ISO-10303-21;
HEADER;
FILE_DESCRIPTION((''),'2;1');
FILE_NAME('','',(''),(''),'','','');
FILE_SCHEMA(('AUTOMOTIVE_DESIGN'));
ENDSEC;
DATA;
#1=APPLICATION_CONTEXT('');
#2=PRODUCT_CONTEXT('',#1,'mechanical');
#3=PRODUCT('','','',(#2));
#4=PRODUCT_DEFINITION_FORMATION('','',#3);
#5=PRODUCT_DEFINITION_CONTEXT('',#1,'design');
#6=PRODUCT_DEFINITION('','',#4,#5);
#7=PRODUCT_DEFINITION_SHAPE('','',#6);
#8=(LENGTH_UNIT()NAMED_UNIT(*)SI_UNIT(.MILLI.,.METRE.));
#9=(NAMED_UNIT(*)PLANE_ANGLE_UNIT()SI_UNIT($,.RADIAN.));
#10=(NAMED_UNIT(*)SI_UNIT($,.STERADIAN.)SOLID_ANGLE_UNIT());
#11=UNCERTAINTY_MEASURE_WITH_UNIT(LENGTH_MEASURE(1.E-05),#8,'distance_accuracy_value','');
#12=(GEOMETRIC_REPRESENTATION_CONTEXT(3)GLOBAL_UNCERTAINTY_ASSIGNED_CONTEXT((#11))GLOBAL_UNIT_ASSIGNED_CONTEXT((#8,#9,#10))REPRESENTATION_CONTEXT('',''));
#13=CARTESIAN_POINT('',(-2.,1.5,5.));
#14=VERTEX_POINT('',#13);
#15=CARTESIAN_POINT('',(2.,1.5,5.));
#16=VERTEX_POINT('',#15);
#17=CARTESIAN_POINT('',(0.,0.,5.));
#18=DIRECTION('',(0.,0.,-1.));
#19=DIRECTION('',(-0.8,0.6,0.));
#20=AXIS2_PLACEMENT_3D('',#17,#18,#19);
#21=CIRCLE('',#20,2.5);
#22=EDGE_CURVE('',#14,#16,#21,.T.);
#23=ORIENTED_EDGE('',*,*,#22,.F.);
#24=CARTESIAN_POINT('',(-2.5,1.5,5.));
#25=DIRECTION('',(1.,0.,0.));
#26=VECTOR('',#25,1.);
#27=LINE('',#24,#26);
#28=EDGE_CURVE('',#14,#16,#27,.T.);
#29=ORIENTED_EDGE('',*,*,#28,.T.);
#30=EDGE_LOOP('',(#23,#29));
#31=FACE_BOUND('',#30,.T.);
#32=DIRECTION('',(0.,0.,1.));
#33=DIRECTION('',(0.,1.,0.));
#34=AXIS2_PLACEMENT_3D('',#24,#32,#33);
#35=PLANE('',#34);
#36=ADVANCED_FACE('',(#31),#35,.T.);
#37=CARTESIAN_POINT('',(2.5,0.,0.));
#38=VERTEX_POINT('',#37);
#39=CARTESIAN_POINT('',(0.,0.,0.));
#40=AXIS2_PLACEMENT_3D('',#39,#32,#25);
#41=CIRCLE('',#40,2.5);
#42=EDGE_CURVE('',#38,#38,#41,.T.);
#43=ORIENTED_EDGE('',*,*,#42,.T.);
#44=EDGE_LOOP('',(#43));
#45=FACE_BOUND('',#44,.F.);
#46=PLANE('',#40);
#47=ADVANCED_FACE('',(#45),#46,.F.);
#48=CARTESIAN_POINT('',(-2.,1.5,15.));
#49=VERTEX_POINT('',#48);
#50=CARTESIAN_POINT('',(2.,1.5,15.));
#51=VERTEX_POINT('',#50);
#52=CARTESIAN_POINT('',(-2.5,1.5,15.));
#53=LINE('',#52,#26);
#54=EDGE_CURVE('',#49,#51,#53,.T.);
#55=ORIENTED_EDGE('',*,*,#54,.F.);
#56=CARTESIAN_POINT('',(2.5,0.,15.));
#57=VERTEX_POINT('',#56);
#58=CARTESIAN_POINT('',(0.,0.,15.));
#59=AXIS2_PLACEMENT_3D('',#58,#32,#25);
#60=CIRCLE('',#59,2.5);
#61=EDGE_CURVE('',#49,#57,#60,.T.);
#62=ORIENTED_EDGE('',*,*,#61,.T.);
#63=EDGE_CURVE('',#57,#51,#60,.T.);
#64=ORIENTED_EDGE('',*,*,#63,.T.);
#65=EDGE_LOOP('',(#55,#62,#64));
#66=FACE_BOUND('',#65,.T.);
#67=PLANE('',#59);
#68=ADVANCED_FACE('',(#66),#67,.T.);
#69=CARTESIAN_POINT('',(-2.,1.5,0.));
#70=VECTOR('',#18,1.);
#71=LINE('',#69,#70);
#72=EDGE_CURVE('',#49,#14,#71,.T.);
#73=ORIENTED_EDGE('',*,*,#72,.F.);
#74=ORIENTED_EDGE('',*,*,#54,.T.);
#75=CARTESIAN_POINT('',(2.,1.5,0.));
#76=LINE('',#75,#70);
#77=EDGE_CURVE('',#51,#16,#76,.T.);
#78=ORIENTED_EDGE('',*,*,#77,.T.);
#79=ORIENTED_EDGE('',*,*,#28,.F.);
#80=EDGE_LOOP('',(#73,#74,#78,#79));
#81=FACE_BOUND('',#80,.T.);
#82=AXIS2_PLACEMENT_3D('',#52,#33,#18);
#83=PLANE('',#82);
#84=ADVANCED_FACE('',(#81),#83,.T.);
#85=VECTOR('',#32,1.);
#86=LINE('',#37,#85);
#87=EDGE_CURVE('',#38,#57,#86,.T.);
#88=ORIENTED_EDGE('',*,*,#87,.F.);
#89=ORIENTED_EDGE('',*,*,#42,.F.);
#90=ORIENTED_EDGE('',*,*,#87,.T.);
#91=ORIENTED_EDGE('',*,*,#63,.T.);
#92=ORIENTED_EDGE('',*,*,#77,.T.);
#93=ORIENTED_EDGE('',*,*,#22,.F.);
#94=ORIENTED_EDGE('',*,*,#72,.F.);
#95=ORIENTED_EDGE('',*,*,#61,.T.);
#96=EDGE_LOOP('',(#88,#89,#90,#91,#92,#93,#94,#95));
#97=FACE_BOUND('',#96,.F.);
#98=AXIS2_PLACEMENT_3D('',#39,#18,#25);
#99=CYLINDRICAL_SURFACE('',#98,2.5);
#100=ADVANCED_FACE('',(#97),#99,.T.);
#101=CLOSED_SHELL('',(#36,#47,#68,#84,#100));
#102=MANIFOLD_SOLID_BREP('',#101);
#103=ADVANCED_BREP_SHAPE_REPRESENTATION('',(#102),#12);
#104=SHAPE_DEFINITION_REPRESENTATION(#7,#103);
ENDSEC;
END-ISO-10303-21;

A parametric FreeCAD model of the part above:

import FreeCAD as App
import Part
import Sketcher
from FreeCAD import Vector

doc = App.newDocument("Part")
body = doc.addObject("PartDesign::Body", "Body")

# Sketch on XY plane
sketch1 = doc.addObject("Sketcher::SketchObject", "Sketch")
body.addObject(sketch1)
sketch1.AttachmentSupport = (doc.XY_Plane, [""])
sketch1.MapMode = "FlatFace"
sketch1.addGeometry(Part.Circle(Vector(0, 0, 0), Vector(0, 0, 1), 2.5), False)
sketch1.addConstraint(Sketcher.Constraint("Coincident", 0, 3, -1, 1))
sketch1.addConstraint(Sketcher.Constraint("Diameter", 0, 5.0))
pad1 = doc.addObject("PartDesign::Pad", "Pad")
body.addObject(pad1)
pad1.Profile = sketch1
pad1.Length = 15

# Sketch on YZ plane
sketch2 = doc.addObject("Sketcher::SketchObject", "Sketch001")
body.addObject(sketch2)
sketch2.AttachmentSupport = (doc.YZ_Plane, [""])
sketch2.MapMode = "FlatFace"
sketch2.AttachmentOffset = App.Placement(Vector(0, 0, -2.5), App.Rotation())
sketch2.addGeometry(Part.LineSegment(Vector(2.5, 5, 0), Vector(2.5, 15, 0)), False)
sketch2.addGeometry(Part.LineSegment(Vector(2.5, 15, 0), Vector(1.5, 15, 0)), False)
sketch2.addGeometry(Part.LineSegment(Vector(1.5, 15, 0), Vector(1.5, 5, 0)), False)
sketch2.addGeometry(Part.LineSegment(Vector(1.5, 5, 0), Vector(2.5, 5, 0)), False)
sketch2.addConstraint(Sketcher.Constraint("Coincident", 0, 2, 1, 1))
sketch2.addConstraint(Sketcher.Constraint("Coincident", 1, 2, 2, 1))
sketch2.addConstraint(Sketcher.Constraint("Coincident", 2, 2, 3, 1))
sketch2.addConstraint(Sketcher.Constraint("Coincident", 3, 2, 0, 1))
sketch2.addConstraint(Sketcher.Constraint("Vertical", 0))
sketch2.addConstraint(Sketcher.Constraint("Horizontal", 1))
sketch2.addConstraint(Sketcher.Constraint("Vertical", 2))
sketch2.addConstraint(Sketcher.Constraint("Horizontal", 3))
sketch2.addConstraint(Sketcher.Constraint("DistanceX", 1, 2, 1, 1, 1.0))
sketch2.addConstraint(Sketcher.Constraint("DistanceY", 0, 1, 0, 2, 10.0))
sketch2.addConstraint(Sketcher.Constraint("DistanceY", -1, 1, 0, 2, 15.0))
sketch2.addConstraint(Sketcher.Constraint("DistanceX", -1, 1, 0, 2, 2.5))
pocket1 = doc.addObject("PartDesign::Pocket", "Pocket")
body.addObject(pocket1)
pocket1.Profile = sketch2
pocket1.Type = "ThroughAll"
pocket1.Reversed = True

doc.recompute()
